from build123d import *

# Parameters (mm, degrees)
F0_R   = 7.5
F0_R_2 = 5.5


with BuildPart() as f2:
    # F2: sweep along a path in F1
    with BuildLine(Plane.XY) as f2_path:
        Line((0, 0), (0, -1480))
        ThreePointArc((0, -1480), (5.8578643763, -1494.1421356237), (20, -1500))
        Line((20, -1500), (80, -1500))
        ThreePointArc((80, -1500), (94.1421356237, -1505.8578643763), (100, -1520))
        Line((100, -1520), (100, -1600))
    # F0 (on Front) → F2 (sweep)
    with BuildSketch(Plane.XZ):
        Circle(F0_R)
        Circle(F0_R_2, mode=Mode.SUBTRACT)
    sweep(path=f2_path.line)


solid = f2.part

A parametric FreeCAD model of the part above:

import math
import FreeCAD as App
import Part
import Sketcher
Q = App.Units.Quantity

doc = App.newDocument("Part")
body = doc.addObject("PartDesign::Body", "Body")

# Sketch on XZ plane
sketch1 = body.newObject("Sketcher::SketchObject", "Sketch")
sketch1.AttachmentSupport = (doc.getObject("XZ_Plane"), [""])
sketch1.MapMode = "FlatFace"
sketch1.addGeometry(Part.Circle(App.Vector(0, 0, 0), App.Vector(0, 0, 1), 7.5), False)
sketch1.addGeometry(Part.Circle(App.Vector(0, 0, 0), App.Vector(0, 0, 1), 5.5), False)
sketch1.addConstraint(Sketcher.Constraint("Coincident", 0, 3, -1, 1))
sketch1.addConstraint(Sketcher.Constraint("Coincident", 1, 3, -1, 1))
sketch1.addConstraint(Sketcher.Constraint("Diameter", 0, Q("15 mm")))
sketch1.addConstraint(Sketcher.Constraint("Diameter", 1, Q("11 mm")))

# Sketch on XY plane
sketch2 = body.newObject("Sketcher::SketchObject", "Sketch001")
sketch2.AttachmentSupport = (doc.getObject("XY_Plane"), [""])
sketch2.MapMode = "FlatFace"
sketch2.addGeometry(Part.LineSegment(App.Vector(0, 0, 0), App.Vector(0, -1480, 0)), False)
sketch2.addGeometry(Part.ArcOfCircle(Part.Circle(App.Vector(20, -1480, 0), App.Vector(0, 0, 1), 20), math.radians(180), math.radians(270)), False)
sketch2.addGeometry(Part.LineSegment(App.Vector(20, -1500, 0), App.Vector(80, -1500, 0)), False)
sketch2.addGeometry(Part.ArcOfCircle(Part.Circle(App.Vector(80, -1520, 0), App.Vector(0, 0, 1), 20), math.radians(0), math.radians(90)), False)
sketch2.addGeometry(Part.LineSegment(App.Vector(100, -1520, 0), App.Vector(100, -1600, 0)), False)
sketch2.addConstraint(Sketcher.Constraint("Tangent", 0, 2, 1, 1))
sketch2.addConstraint(Sketcher.Constraint("Tangent", 1, 2, 2, 1))
sketch2.addConstraint(Sketcher.Constraint("Tangent", 2, 2, 3, 2))
sketch2.addConstraint(Sketcher.Constraint("Tangent", 3, 1, 4, 1))
sketch2.addConstraint(Sketcher.Constraint("Vertical", 0))
sketch2.addConstraint(Sketcher.Constraint("Horizontal", 2))
sketch2.addConstraint(Sketcher.Constraint("Vertical", 4))
sketch2.addConstraint(Sketcher.Constraint("Coincident", 0, 1, -1, 1))
sketch2.addConstraint(Sketcher.Constraint("Equal", 1, 3))
sketch2.addConstraint(Sketcher.Constraint("Radius", 1, Q("20 mm")))
sketch2.addConstraint(Sketcher.Constraint("DistanceX", 2, 1, 2, 2, Q("60 mm")))
sketch2.addConstraint(Sketcher.Constraint("DistanceY", 0, 2, 0, 1, Q("1480 mm")))
sketch2.addConstraint(Sketcher.Constraint("DistanceY", 4, 2, 4, 1, Q("80 mm")))
doc.recompute()

additivepipe = body.newObject("PartDesign::AdditivePipe", "AdditivePipe")
additivepipe.Profile = sketch1
additivepipe.Spine = (sketch2, ["Edge1", "Edge2", "Edge3", "Edge4", "Edge5"])

doc.recompute()
